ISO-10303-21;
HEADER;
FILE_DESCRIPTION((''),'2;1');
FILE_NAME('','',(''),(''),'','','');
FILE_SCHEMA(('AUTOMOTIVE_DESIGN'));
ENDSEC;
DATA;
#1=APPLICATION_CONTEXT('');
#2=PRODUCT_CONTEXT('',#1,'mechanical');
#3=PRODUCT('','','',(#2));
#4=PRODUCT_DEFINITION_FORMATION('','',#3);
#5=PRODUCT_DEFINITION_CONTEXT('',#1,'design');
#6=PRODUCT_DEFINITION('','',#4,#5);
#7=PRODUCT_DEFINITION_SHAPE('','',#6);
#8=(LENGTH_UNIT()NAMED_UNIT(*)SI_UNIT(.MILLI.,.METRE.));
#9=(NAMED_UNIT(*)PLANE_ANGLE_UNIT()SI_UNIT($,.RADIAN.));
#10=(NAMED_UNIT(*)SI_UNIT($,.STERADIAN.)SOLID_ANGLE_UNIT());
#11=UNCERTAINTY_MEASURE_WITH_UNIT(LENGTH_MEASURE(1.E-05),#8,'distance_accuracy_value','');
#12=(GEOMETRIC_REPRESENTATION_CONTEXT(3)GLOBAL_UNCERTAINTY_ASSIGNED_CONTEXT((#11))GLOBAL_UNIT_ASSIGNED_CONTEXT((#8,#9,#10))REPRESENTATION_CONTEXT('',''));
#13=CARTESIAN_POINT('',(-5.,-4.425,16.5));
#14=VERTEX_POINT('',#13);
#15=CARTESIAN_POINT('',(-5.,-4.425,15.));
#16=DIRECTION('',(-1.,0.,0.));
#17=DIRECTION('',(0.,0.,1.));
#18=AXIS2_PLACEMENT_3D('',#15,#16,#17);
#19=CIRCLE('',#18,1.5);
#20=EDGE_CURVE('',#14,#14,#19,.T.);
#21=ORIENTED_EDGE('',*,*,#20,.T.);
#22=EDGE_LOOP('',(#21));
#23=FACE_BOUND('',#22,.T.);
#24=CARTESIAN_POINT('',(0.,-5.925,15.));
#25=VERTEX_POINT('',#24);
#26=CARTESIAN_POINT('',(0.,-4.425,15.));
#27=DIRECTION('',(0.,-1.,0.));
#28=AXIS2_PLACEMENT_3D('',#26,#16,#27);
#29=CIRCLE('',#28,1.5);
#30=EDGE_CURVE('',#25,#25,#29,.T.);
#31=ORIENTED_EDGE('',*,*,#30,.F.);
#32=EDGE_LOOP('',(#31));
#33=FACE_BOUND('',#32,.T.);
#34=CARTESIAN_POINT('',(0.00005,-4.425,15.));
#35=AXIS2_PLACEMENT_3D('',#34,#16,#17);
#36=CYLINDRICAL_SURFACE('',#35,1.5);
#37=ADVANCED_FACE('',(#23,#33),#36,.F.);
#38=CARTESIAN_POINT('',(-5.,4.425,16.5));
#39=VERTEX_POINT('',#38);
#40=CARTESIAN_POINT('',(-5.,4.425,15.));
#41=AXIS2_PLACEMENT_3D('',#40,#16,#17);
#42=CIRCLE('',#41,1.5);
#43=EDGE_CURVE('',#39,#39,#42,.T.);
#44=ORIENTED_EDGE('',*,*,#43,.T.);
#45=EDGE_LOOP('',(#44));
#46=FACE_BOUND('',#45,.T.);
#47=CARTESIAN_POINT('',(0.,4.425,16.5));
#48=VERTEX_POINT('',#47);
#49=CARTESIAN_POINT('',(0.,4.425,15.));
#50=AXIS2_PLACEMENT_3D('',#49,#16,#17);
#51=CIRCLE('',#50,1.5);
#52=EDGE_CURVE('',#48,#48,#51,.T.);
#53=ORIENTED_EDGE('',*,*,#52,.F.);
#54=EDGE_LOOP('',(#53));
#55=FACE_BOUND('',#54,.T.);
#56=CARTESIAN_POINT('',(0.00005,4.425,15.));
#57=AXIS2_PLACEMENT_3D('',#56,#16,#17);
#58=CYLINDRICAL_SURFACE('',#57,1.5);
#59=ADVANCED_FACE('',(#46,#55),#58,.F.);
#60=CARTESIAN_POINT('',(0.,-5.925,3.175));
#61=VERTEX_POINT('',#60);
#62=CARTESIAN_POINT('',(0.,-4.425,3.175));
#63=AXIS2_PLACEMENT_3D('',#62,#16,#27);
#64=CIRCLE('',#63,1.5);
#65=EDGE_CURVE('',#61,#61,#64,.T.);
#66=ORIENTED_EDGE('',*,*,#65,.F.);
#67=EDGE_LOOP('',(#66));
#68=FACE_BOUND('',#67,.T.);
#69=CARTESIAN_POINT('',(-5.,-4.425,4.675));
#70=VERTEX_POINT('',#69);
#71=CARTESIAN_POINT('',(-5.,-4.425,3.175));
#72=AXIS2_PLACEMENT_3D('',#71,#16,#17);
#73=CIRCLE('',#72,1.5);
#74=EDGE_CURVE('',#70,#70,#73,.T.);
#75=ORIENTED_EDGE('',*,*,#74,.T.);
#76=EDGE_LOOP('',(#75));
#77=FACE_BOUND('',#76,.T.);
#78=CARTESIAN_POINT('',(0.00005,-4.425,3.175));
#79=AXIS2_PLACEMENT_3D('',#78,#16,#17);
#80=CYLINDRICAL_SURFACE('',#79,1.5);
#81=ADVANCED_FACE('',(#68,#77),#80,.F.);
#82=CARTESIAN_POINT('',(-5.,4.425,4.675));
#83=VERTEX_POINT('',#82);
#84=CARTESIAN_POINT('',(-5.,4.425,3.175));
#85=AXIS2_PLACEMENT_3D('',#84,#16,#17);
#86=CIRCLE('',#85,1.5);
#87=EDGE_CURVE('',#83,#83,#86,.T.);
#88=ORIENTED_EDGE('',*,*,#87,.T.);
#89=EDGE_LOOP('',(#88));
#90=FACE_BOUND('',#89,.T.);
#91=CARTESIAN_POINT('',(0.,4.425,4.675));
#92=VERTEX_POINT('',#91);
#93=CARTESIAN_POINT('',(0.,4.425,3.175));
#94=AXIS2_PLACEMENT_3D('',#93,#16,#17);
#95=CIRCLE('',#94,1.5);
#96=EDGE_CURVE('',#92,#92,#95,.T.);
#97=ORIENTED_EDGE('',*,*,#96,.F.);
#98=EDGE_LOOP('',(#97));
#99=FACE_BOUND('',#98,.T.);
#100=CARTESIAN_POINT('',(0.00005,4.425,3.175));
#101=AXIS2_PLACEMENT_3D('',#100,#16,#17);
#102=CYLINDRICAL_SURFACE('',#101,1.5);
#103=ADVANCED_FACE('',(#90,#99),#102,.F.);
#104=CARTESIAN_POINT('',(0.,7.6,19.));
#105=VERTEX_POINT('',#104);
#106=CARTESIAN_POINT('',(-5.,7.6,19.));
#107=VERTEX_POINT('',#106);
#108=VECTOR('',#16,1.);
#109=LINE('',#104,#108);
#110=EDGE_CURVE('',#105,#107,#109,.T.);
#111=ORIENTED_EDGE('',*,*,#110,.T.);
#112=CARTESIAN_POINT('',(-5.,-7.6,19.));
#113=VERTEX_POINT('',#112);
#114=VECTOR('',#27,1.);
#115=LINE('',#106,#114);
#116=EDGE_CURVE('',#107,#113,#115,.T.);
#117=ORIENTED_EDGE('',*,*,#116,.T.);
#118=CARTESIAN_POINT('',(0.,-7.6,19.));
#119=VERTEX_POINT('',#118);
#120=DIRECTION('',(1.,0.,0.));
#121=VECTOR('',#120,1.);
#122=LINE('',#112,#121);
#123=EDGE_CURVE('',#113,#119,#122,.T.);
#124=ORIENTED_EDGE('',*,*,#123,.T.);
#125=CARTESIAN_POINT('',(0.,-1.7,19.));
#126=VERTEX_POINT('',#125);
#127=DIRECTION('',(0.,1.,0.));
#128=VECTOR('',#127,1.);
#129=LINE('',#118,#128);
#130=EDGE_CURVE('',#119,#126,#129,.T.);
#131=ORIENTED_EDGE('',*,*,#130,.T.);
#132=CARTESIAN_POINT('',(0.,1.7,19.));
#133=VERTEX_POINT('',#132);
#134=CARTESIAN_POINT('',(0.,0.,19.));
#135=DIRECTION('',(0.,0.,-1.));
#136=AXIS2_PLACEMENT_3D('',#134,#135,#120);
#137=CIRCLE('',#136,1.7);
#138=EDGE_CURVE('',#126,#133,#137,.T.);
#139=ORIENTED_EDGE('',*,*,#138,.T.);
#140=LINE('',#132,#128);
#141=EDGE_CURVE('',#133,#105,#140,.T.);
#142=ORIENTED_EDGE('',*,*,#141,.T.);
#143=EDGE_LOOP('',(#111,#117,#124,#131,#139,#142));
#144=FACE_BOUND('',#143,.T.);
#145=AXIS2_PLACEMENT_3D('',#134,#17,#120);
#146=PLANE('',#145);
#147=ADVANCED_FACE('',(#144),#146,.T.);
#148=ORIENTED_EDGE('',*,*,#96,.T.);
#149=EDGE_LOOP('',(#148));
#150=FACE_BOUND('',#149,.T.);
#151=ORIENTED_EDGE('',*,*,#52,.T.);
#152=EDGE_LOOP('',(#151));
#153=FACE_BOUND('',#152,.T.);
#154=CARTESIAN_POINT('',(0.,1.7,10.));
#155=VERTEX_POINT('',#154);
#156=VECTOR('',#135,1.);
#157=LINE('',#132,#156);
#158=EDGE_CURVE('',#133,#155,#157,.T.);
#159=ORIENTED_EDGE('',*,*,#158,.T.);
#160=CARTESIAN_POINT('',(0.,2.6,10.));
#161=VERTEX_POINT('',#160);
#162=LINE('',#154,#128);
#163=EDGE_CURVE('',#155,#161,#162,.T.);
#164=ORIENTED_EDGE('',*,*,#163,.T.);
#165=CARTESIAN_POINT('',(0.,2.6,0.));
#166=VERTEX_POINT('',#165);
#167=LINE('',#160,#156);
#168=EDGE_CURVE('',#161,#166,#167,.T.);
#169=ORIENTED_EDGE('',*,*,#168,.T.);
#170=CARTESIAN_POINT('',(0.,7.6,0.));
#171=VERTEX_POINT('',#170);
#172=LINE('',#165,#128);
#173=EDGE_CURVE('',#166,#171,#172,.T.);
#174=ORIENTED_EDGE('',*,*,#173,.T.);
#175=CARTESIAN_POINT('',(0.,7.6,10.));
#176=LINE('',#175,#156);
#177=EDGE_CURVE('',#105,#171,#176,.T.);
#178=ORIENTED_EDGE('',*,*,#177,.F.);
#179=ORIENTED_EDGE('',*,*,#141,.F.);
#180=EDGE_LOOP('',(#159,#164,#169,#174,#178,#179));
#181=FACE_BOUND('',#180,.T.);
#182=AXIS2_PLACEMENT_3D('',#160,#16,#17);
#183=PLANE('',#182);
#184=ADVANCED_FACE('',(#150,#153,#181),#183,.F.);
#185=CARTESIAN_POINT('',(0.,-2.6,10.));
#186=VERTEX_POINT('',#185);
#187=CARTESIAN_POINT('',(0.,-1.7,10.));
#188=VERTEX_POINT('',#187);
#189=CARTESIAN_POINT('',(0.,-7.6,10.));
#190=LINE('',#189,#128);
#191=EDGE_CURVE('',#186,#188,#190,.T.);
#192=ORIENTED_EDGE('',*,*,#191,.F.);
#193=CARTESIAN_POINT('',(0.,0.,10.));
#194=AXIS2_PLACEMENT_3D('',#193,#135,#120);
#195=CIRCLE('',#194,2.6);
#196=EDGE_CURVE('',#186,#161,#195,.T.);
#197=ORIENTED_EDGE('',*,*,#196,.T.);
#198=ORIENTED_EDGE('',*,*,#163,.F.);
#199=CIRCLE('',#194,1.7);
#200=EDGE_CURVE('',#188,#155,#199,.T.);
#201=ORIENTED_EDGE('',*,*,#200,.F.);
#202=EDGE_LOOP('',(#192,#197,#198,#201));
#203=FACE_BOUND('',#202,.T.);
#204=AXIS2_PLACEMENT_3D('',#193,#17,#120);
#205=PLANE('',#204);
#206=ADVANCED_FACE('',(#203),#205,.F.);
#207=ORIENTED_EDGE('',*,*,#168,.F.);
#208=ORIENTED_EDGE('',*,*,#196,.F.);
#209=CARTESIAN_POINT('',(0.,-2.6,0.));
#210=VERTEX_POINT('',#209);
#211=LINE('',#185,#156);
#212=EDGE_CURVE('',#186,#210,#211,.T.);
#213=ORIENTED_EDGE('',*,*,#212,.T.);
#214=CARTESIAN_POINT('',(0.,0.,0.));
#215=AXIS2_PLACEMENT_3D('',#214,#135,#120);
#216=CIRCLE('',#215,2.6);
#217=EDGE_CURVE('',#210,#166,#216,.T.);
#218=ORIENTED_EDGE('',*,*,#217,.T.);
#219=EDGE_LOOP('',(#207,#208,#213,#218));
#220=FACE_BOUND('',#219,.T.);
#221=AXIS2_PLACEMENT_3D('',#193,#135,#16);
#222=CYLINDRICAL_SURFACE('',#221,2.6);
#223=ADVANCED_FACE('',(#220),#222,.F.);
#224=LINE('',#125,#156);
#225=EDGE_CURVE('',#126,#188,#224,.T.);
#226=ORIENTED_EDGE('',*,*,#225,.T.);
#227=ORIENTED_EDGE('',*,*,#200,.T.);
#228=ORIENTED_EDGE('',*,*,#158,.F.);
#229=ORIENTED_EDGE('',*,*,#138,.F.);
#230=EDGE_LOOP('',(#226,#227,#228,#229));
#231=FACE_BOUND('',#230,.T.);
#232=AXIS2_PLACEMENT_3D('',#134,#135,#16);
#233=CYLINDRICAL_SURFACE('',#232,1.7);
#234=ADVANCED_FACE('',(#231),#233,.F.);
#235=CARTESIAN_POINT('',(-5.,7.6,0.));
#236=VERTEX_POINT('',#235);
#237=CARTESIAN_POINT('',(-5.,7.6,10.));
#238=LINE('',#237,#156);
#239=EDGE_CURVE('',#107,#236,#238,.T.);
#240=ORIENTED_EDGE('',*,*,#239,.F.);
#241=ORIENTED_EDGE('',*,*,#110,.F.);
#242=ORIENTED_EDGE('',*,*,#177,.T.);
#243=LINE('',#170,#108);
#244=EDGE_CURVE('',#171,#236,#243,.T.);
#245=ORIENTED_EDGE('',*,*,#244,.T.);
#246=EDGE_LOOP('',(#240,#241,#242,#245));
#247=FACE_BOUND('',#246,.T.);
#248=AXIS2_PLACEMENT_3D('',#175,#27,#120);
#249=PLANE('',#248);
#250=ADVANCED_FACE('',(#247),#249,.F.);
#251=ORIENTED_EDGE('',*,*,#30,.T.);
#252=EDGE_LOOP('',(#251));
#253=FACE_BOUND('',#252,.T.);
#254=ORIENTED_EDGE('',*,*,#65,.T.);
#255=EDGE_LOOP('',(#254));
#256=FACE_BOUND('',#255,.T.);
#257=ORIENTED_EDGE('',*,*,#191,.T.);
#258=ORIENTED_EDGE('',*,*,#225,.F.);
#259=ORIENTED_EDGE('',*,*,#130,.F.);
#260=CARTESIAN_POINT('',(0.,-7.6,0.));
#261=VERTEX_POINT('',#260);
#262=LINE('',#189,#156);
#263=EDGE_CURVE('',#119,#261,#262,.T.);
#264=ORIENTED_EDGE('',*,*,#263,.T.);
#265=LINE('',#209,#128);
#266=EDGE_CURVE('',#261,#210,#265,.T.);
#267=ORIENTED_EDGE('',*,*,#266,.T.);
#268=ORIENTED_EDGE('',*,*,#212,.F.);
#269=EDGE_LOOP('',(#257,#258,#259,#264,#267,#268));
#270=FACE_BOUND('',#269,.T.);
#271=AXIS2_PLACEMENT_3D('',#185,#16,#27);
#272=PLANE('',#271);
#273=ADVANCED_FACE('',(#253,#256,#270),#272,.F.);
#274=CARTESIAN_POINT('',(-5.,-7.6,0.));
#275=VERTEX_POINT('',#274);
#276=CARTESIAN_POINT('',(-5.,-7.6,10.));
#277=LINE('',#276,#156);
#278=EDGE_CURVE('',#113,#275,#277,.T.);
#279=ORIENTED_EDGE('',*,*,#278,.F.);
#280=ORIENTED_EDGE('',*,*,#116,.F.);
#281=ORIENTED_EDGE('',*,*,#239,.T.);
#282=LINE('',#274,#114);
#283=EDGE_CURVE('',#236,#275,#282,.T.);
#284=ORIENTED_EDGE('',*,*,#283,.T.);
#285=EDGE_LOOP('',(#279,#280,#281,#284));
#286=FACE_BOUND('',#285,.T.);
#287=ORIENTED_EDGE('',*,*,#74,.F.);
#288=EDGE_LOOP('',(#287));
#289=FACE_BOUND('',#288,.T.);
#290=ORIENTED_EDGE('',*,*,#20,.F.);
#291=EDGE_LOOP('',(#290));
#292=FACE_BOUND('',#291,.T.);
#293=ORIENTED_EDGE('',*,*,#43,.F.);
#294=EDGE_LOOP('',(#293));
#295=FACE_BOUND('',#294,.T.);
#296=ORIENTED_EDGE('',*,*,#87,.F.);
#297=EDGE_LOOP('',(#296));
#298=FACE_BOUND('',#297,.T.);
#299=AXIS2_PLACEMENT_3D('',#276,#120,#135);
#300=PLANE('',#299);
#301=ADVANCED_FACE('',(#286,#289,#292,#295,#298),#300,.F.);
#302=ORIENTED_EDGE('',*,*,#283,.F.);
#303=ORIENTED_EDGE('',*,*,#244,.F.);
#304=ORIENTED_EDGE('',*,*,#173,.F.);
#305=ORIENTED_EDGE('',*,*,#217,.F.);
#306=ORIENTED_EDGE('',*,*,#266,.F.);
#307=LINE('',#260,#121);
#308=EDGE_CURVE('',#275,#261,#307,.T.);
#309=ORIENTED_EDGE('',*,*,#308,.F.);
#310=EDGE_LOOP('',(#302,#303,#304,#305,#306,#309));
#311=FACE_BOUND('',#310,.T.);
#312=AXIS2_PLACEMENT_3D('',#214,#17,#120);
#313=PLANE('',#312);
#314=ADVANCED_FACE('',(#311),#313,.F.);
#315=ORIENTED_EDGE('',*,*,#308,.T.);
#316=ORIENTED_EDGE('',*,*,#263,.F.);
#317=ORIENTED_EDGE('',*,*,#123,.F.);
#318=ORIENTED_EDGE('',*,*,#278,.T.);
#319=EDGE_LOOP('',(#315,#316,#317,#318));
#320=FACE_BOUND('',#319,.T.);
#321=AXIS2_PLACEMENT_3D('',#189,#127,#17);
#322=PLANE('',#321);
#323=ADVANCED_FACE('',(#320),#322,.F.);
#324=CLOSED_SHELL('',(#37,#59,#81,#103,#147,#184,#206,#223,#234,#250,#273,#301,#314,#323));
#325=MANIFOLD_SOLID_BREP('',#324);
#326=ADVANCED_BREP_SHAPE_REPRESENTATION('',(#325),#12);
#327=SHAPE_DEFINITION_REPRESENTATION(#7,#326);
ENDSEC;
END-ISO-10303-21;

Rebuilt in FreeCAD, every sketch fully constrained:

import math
import FreeCAD as App
import Part
import Sketcher
from FreeCAD import Vector
Q = App.Units.Quantity

doc = App.newDocument("Part")
body = doc.addObject("PartDesign::Body", "Body")

# Sketch on XY plane
sketch1 = doc.addObject("Sketcher::SketchObject", "Sketch")
body.addObject(sketch1)
sketch1.AttachmentSupport = (doc.XY_Plane, [""])
sketch1.MapMode = "FlatFace"
sketch1.addGeometry([
    Part.LineSegment(Vector(0, 2.6, 0), Vector(0, 7.6, 0)),  # 0
    Part.LineSegment(Vector(0, 7.6, 0), Vector(-5, 7.6, 0)),  # 1
    Part.LineSegment(Vector(-5, 7.6, 0), Vector(-5, -7.6, 0)),  # 2
    Part.LineSegment(Vector(-5, -7.6, 0), Vector(0, -7.6, 0)),  # 3
    Part.LineSegment(Vector(0, -7.6, 0), Vector(0, -2.6, 0)),  # 4
    Part.ArcOfCircle(Part.Circle(Vector(0, 0, 0), Vector(0, 0, 1), 2.6), math.radians(90), math.radians(270)),  # 5
], False)
sketch1.addConstraint([
    Sketcher.Constraint("Coincident", 0, 2, 1, 1),
    Sketcher.Constraint("Coincident", 1, 2, 2, 1),
    Sketcher.Constraint("Coincident", 2, 2, 3, 1),
    Sketcher.Constraint("Coincident", 3, 2, 4, 1),
    Sketcher.Constraint("Coincident", 4, 2, 5, 2),
    Sketcher.Constraint("Coincident", 5, 1, 0, 1),
    Sketcher.Constraint("Vertical", 0),
    Sketcher.Constraint("Horizontal", 1),
    Sketcher.Constraint("Vertical", 2),
    Sketcher.Constraint("Horizontal", 3),
    Sketcher.Constraint("Vertical", 4),
    Sketcher.Constraint("Coincident", 5, 3, -1, 1),
    Sketcher.Constraint("Symmetric", 0, 2, 3, 2, -1, 1),
    Sketcher.Constraint("PointOnObject", 0, 2, -2),
    Sketcher.Constraint("Equal", 3, 0),
    Sketcher.Constraint("Radius", 5, Q("2.6 mm")),
    Sketcher.Constraint("DistanceX", 1, 2, 1, 1, Q("5 mm")),
])
pad1 = doc.addObject("PartDesign::Pad", "Pad")
body.addObject(pad1)
pad1.Profile = sketch1
pad1.Length = 10

# Sketch on XY plane
sketch2 = doc.addObject("Sketcher::SketchObject", "Sketch001")
body.addObject(sketch2)
sketch2.AttachmentSupport = (doc.XY_Plane, [""])
sketch2.MapMode = "FlatFace"
sketch2.AttachmentOffset = App.Placement(Vector(0, 0, 10), App.Rotation())
sketch2.addGeometry([
    Part.LineSegment(Vector(0, 1.7, 0), Vector(0, 7.6, 0)),  # 0
    Part.LineSegment(Vector(0, 7.6, 0), Vector(-5, 7.6, 0)),  # 1
    Part.LineSegment(Vector(-5, 7.6, 0), Vector(-5, -7.6, 0)),  # 2
    Part.LineSegment(Vector(-5, -7.6, 0), Vector(0, -7.6, 0)),  # 3
    Part.LineSegment(Vector(0, -7.6, 0), Vector(0, -1.7, 0)),  # 4
    Part.ArcOfCircle(Part.Circle(Vector(0, 0, 0), Vector(0, 0, 1), 1.7), math.radians(90), math.radians(270)),  # 5
], False)
sketch2.addConstraint([
    Sketcher.Constraint("Coincident", 0, 2, 1, 1),
    Sketcher.Constraint("Coincident", 1, 2, 2, 1),
    Sketcher.Constraint("Coincident", 2, 2, 3, 1),
    Sketcher.Constraint("Coincident", 3, 2, 4, 1),
    Sketcher.Constraint("Coincident", 4, 2, 5, 2),
    Sketcher.Constraint("Coincident", 5, 1, 0, 1),
    Sketcher.Constraint("Vertical", 0),
    Sketcher.Constraint("Horizontal", 1),
    Sketcher.Constraint("Vertical", 2),
    Sketcher.Constraint("Horizontal", 3),
    Sketcher.Constraint("Vertical", 4),
    Sketcher.Constraint("Coincident", 5, 3, -1, 1),
    Sketcher.Constraint("Symmetric", 0, 2, 3, 2, -1, 1),
    Sketcher.Constraint("PointOnObject", 0, 2, -2),
    Sketcher.Constraint("Radius", 5, Q("1.7 mm")),
    Sketcher.Constraint("DistanceX", 1, 2, 1, 1, Q("5 mm")),
    Sketcher.Constraint("DistanceY", 0, 1, 0, 2, Q("5.9 mm")),
])
pad2 = doc.addObject("PartDesign::Pad", "Pad001")
body.addObject(pad2)
pad2.Profile = sketch2
pad2.Length = 9

# Sketch on YZ plane
sketch3 = doc.addObject("Sketcher::SketchObject", "Sketch002")
body.addObject(sketch3)
sketch3.AttachmentSupport = (doc.YZ_Plane, [""])
sketch3.MapMode = "FlatFace"
sketch3.AttachmentOffset = App.Placement(Vector(0, 0, -5), App.Rotation())
sketch3.addGeometry([
    Part.Circle(Vector(4.4, 3.2, 0), Vector(0, 0, 1), 1.5),
    Part.Circle(Vector(4.4, 15, 0), Vector(0, 0, 1), 1.5),
    Part.Circle(Vector(-4.4, 15, 0), Vector(0, 0, 1), 1.5),
    Part.Circle(Vector(-4.4, 3.2, 0), Vector(0, 0, 1), 1.5),
], False)
sketch3.addConstraint([
    Sketcher.Constraint("Equal", 0, 1),
    Sketcher.Constraint("Equal", 1, 2),
    Sketcher.Constraint("Equal", 2, 3),
    Sketcher.Constraint("Symmetric", 1, 3, 2, 3, -2),
    Sketcher.Constraint("Symmetric", 0, 3, 3, 3, -2),
    Sketcher.Constraint("Vertical", 0, 3, 1, 3),
    Sketcher.Constraint("Diameter", 0, Q("3 mm")),
    Sketcher.Constraint("DistanceY", -1, 1, 1, 3, Q("15 mm")),
    Sketcher.Constraint("DistanceX", 2, 3, 1, 3, Q("8.85 mm")),
    Sketcher.Constraint("DistanceY", -1, 1, 0, 3, Q("3.175 mm")),
])
pocket1 = doc.addObject("PartDesign::Pocket", "Pocket")
body.addObject(pocket1)
pocket1.Profile = sketch3
pocket1.Type = "ThroughAll"
pocket1.Reversed = True

doc.recompute()
